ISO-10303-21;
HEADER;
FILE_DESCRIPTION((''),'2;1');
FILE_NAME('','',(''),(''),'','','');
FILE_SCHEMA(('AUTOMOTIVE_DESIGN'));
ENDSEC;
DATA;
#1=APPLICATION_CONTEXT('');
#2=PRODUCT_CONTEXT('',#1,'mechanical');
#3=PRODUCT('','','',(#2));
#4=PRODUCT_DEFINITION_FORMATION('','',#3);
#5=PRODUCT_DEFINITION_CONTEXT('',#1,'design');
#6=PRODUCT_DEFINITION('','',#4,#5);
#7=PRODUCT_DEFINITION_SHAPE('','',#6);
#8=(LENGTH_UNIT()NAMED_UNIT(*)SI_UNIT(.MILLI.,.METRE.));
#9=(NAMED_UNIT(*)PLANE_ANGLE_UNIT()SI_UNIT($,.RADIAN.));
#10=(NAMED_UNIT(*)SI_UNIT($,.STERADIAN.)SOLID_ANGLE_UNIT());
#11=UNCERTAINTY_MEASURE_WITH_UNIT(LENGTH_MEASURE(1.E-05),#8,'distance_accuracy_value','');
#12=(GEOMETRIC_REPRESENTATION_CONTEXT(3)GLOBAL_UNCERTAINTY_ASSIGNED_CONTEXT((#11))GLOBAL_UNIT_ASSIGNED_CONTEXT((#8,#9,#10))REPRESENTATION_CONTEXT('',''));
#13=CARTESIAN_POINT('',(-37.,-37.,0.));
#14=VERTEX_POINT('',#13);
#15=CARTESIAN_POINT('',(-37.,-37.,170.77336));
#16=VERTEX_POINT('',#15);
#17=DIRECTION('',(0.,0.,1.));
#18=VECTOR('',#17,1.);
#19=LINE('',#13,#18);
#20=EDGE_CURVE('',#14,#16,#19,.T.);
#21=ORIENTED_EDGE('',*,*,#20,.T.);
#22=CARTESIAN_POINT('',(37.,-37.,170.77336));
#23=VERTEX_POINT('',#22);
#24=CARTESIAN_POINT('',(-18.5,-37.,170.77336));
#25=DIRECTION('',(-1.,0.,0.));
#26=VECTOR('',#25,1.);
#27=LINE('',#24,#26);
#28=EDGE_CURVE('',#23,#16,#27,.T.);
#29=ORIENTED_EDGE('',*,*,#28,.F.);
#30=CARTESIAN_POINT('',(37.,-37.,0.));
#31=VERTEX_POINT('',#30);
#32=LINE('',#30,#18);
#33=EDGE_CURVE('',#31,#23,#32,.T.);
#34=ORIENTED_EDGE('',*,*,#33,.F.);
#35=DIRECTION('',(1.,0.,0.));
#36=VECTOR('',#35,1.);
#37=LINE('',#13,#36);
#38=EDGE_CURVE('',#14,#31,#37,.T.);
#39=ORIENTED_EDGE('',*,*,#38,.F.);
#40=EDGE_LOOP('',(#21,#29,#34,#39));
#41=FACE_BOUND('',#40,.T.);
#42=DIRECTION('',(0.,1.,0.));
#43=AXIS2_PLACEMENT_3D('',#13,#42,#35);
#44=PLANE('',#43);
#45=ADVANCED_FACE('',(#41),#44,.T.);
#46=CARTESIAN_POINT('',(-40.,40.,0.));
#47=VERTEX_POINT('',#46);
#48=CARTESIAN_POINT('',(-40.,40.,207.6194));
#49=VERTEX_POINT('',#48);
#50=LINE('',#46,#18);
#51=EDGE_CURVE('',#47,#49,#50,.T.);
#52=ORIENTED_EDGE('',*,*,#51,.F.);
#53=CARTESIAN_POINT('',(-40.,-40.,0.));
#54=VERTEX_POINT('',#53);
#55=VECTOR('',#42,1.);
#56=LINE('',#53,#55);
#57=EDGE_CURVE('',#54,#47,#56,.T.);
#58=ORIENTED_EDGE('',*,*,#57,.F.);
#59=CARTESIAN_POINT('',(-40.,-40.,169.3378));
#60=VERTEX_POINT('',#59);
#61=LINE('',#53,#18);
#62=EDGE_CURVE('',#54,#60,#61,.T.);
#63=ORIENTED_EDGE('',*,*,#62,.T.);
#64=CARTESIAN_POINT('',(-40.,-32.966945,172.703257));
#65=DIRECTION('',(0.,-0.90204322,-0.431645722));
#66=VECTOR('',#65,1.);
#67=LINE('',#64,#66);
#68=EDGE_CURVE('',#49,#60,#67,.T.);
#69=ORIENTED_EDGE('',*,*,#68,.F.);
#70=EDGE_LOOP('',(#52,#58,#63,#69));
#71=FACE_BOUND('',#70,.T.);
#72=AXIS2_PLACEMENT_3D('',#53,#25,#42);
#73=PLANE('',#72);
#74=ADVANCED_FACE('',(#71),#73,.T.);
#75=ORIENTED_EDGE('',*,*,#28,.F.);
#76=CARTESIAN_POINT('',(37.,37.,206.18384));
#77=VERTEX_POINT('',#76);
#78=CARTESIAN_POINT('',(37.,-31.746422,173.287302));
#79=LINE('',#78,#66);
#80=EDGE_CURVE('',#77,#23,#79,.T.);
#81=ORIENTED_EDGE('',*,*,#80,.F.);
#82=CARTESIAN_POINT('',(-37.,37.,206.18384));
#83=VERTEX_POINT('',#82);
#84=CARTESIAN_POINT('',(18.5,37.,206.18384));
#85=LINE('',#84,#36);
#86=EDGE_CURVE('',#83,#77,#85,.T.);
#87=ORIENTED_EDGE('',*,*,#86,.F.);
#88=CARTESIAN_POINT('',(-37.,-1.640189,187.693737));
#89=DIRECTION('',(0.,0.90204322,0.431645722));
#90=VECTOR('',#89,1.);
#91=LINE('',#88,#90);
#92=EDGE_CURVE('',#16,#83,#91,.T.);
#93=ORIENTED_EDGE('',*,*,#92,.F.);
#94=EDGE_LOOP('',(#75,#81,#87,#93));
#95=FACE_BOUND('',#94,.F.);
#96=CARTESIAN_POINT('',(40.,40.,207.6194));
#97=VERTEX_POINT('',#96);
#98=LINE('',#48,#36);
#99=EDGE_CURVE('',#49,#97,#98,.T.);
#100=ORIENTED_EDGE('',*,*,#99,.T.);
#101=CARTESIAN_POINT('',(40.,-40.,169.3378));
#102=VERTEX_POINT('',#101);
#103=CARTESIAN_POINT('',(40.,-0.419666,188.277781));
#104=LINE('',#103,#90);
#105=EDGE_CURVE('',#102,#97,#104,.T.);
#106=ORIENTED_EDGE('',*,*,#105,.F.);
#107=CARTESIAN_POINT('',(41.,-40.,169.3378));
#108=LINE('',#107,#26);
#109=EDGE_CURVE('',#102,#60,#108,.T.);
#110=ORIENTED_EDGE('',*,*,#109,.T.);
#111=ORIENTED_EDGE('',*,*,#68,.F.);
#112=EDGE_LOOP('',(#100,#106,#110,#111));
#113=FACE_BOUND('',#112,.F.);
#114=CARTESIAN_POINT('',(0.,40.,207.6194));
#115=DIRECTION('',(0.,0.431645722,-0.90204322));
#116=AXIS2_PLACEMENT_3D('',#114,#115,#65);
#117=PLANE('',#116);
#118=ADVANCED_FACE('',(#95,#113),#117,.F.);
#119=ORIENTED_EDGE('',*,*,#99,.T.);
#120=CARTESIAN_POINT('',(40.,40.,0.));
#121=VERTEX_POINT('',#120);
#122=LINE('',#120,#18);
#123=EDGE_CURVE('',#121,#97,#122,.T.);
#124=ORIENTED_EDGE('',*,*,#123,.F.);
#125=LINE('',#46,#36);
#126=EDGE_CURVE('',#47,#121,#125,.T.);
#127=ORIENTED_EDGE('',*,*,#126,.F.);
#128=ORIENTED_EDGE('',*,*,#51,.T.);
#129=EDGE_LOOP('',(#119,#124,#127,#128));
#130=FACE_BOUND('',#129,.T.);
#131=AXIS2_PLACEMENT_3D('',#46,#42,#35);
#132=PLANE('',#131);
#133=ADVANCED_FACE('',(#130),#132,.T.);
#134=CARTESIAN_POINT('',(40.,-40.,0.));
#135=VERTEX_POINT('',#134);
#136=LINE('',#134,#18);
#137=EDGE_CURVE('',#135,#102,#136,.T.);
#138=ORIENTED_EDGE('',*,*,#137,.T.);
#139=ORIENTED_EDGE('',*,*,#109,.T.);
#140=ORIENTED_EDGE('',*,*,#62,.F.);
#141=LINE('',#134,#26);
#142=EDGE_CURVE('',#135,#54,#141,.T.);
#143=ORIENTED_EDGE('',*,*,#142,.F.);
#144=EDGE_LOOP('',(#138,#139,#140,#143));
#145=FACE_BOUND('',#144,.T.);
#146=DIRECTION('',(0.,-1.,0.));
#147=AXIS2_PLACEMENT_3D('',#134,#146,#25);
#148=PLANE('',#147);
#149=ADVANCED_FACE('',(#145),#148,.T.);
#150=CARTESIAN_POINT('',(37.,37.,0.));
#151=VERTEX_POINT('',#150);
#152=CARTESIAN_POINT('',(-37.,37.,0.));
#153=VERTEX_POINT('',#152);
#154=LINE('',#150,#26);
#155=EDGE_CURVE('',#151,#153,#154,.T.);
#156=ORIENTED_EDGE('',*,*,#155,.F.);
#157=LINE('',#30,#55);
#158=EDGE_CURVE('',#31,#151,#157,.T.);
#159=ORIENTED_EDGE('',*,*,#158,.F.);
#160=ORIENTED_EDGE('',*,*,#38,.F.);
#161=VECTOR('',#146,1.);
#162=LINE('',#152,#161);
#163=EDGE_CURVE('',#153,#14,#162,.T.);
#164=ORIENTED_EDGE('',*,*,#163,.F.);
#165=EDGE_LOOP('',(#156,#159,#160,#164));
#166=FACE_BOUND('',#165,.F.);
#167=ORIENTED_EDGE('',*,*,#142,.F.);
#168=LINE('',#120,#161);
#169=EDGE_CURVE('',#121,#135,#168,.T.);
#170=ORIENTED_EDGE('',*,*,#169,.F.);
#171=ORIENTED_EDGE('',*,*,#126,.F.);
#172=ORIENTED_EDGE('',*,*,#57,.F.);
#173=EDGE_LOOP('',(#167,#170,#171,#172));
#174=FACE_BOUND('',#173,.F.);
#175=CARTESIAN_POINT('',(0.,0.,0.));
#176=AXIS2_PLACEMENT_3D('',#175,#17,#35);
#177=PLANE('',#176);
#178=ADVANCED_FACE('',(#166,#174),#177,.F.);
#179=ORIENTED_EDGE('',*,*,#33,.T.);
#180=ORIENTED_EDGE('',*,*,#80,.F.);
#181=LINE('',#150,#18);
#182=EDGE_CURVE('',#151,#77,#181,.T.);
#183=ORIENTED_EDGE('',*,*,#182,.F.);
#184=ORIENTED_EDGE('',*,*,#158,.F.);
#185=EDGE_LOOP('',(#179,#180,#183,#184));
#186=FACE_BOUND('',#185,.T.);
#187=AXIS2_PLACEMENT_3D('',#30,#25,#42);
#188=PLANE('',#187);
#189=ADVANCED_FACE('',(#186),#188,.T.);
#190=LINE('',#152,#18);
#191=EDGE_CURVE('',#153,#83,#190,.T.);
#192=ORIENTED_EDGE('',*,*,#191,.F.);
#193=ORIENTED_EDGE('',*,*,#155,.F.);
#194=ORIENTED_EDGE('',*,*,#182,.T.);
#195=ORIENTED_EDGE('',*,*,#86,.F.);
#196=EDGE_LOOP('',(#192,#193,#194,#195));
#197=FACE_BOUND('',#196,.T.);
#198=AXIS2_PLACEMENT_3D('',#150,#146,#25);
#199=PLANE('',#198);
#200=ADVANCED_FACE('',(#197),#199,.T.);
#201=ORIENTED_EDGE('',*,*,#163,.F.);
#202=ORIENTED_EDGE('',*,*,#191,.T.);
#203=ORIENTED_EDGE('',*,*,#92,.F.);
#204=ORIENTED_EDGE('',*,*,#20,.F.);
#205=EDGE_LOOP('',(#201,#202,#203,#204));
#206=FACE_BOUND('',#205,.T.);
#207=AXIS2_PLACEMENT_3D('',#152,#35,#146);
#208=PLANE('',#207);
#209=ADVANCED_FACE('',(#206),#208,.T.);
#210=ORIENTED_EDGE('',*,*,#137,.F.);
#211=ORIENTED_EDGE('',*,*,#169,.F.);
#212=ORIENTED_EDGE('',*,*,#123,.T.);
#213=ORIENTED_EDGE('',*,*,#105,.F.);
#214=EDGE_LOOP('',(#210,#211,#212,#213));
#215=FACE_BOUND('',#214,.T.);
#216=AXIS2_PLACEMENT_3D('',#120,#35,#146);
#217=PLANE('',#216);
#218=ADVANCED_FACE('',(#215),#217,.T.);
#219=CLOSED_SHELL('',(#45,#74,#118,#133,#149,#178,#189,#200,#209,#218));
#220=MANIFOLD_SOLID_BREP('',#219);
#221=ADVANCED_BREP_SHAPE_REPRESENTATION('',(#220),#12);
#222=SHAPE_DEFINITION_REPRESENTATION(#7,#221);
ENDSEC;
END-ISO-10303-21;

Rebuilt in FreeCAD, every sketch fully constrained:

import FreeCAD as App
import Part
import Sketcher

V = App.Vector
Q = App.Units.Quantity

doc = App.newDocument("Part")
body = doc.addObject("PartDesign::Body", "Body")

# Sketch on XY plane
sketch1 = body.newObject("Sketcher::SketchObject", "Sketch")
sketch1.AttachmentSupport = (doc.getObject("XY_Plane"), [""])
sketch1.MapMode = "FlatFace"
sketch1.addGeometry([
    Part.LineSegment(V(-40, -40, 0), V(40, -40, 0)),  # 0
    Part.LineSegment(V(40, -40, 0), V(40, 40, 0)),  # 1
    Part.LineSegment(V(40, 40, 0), V(-40, 40, 0)),  # 2
    Part.LineSegment(V(-40, 40, 0), V(-40, -40, 0)),  # 3
    Part.LineSegment(V(37, -37, 0), V(-37, -37, 0)),  # 4
    Part.LineSegment(V(-37, -37, 0), V(-37, 37, 0)),  # 5
    Part.LineSegment(V(-37, 37, 0), V(37, 37, 0)),  # 6
    Part.LineSegment(V(37, 37, 0), V(37, -37, 0)),  # 7
], False)
sketch1.addConstraint([
    Sketcher.Constraint("Coincident", 0, 2, 1, 1),
    Sketcher.Constraint("Coincident", 1, 2, 2, 1),
    Sketcher.Constraint("Coincident", 2, 2, 3, 1),
    Sketcher.Constraint("Coincident", 3, 2, 0, 1),
    Sketcher.Constraint("Coincident", 4, 2, 5, 1),
    Sketcher.Constraint("Coincident", 5, 2, 6, 1),
    Sketcher.Constraint("Coincident", 6, 2, 7, 1),
    Sketcher.Constraint("Coincident", 7, 2, 4, 1),
    Sketcher.Constraint("Horizontal", 0),
    Sketcher.Constraint("Vertical", 1),
    Sketcher.Constraint("Horizontal", 2),
    Sketcher.Constraint("Vertical", 3),
    Sketcher.Constraint("Horizontal", 4),
    Sketcher.Constraint("Vertical", 5),
    Sketcher.Constraint("Horizontal", 6),
    Sketcher.Constraint("Vertical", 7),
    Sketcher.Constraint("Symmetric", 0, 2, 2, 2, -1, 1),
    Sketcher.Constraint("Symmetric", 4, 2, 6, 2, -1, 1),
    Sketcher.Constraint("Equal", 2, 1),
    Sketcher.Constraint("Equal", 6, 5),
    Sketcher.Constraint("DistanceX", 0, 1, 0, 2, Q("80 mm")),
    Sketcher.Constraint("DistanceX", 3, 2, 4, 2, Q("3 mm")),
])
pad1 = body.newObject("PartDesign::Pad", "Pad")
pad1.Profile = sketch1
pad1.Length = 207.6194

# Sketch on YZ plane
sketch2 = body.newObject("Sketcher::SketchObject", "Sketch001")
sketch2.AttachmentSupport = (doc.getObject("YZ_Plane"), [""])
sketch2.MapMode = "FlatFace"
sketch2.addGeometry([
    Part.LineSegment(V(-40, 169.3378, 0), V(40, 207.6194, 0)),
    Part.LineSegment(V(40, 207.6194, 0), V(-40, 207.6194, 0)),
    Part.LineSegment(V(-40, 207.6194, 0), V(-40, 169.3378, 0)),
], False)
sketch2.addConstraint([
    Sketcher.Constraint("Coincident", 0, 2, 1, 1),
    Sketcher.Constraint("Coincident", 1, 2, 2, 1),
    Sketcher.Constraint("Coincident", 2, 2, 0, 1),
    Sketcher.Constraint("Horizontal", 1),
    Sketcher.Constraint("Vertical", 2),
    Sketcher.Constraint("DistanceX", 1, 2, 1, 1, Q("80 mm")),
    Sketcher.Constraint("DistanceX", -1, 1, 0, 2, Q("40 mm")),
    Sketcher.Constraint("DistanceY", 2, 2, 2, 1, Q("38.2816 mm")),
    Sketcher.Constraint("DistanceY", -1, 1, 0, 2, Q("207.6194 mm")),
])
pocket1 = body.newObject("PartDesign::Pocket", "Pocket")
pocket1.Profile = sketch2
pocket1.Type = "ThroughAll"
pocket1.Midplane = True

doc.recompute()
